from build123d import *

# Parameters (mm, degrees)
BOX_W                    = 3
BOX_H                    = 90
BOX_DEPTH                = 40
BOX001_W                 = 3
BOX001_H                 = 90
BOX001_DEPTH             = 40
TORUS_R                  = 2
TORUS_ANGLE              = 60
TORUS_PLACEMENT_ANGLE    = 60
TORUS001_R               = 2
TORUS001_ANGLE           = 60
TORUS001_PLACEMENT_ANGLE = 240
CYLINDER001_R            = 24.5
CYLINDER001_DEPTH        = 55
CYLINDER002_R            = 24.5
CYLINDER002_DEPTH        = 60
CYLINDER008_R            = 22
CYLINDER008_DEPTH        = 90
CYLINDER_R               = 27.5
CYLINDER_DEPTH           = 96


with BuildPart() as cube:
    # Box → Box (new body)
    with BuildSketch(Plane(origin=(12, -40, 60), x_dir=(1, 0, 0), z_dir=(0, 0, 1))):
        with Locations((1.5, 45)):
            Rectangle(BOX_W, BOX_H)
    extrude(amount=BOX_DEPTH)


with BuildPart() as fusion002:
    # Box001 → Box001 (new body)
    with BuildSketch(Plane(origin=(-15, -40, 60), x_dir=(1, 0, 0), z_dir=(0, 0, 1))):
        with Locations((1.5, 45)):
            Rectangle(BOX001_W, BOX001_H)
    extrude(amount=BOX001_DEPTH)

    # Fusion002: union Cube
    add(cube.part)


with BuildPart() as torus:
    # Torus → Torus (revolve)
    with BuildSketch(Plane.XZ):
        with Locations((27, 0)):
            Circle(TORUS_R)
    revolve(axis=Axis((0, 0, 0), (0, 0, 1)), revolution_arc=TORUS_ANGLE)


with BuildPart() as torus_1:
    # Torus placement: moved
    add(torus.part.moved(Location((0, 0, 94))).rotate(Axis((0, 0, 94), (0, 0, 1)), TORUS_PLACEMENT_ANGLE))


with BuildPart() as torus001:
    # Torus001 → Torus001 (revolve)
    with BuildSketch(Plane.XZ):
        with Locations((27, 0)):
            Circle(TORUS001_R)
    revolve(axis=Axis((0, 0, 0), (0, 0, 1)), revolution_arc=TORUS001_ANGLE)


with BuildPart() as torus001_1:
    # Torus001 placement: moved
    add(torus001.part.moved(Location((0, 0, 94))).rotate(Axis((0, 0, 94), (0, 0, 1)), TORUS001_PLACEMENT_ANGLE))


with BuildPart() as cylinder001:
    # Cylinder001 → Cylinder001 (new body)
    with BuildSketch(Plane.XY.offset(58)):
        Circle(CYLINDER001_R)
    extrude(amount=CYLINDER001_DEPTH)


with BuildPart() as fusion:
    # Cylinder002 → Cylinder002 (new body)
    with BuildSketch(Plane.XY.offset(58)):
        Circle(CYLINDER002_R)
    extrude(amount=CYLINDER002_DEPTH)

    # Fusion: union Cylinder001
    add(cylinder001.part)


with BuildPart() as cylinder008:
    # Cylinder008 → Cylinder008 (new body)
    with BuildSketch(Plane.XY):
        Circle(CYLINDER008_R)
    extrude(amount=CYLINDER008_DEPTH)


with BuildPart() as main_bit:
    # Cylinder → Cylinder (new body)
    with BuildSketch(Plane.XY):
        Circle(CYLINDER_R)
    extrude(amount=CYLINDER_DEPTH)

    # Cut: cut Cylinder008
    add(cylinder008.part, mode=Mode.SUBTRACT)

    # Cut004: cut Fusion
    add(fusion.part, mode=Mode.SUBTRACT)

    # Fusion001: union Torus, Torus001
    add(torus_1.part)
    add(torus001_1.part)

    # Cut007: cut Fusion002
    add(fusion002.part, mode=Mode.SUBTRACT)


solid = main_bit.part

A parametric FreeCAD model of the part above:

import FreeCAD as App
import Part
import Sketcher

V = App.Vector

doc = App.newDocument("Part")
params = doc.addObject("Spreadsheet::Sheet", "Params")
for row, (alias, value) in enumerate([
    ("sketch1_width", "3 mm"),
    ("sketch1_height", "90 mm"),
    ("pad1_length", "40 mm"),
    ("sketch2_width", "3 mm"),
    ("sketch2_height", "90 mm"),
    ("pad2_length", "40 mm"),
    ("sketch3_diameter", "4 mm"),
    ("revolution_angle", "60 deg"),
    ("sketch4_diameter", "4 mm"),
    ("revolution2_angle", "60 deg"),
    ("sketch5_diameter", "49 mm"),
    ("pad3_length", "55 mm"),
    ("sketch6_diameter", "49 mm"),
    ("pad4_length", "60 mm"),
    ("sketch7_diameter", "44 mm"),
    ("pad5_length", "90 mm"),
    ("sketch8_diameter", "55 mm"),
    ("pad6_length", "96 mm"),
], start=1):
    params.set(f"A{row}", alias)
    params.set(f"B{row}", "=" + value)
    params.setAlias(f"B{row}", alias)

body = doc.addObject("PartDesign::Body", "Body")

# Sketch on XY plane
sketch1 = body.newObject("Sketcher::SketchObject", "Sketch")
sketch1.AttachmentSupport = (doc.getObject("XY_Plane"), [""])
sketch1.MapMode = "FlatFace"
sketch1.AttachmentOffset = App.Placement(V(0, 0, 60), App.Rotation())
sketch1.addGeometry([
    Part.LineSegment(V(12, 50, 0), V(12, -40, 0)),
    Part.LineSegment(V(12, -40, 0), V(15, -40, 0)),
    Part.LineSegment(V(15, -40, 0), V(15, 50, 0)),
    Part.LineSegment(V(15, 50, 0), V(12, 50, 0)),
], False)
sketch1.addConstraint([
    Sketcher.Constraint("Coincident", 0, 2, 1, 1),
    Sketcher.Constraint("Coincident", 1, 2, 2, 1),
    Sketcher.Constraint("Coincident", 2, 2, 3, 1),
    Sketcher.Constraint("Coincident", 3, 2, 0, 1),
    Sketcher.Constraint("Vertical", 0),
    Sketcher.Constraint("Horizontal", 1),
    Sketcher.Constraint("Vertical", 2),
    Sketcher.Constraint("Horizontal", 3),
    Sketcher.Constraint("DistanceX", 1, 1, 1, 2, 3.0),
    Sketcher.Constraint("DistanceY", 0, 2, 0, 1, 90.0),
    Sketcher.Constraint("DistanceX", -1, 1, 0, 2, 12.0),
    Sketcher.Constraint("DistanceY", 0, 2, -1, 1, 40.0),
])
sketch1.setExpression("Constraints[8]", "Params.sketch1_width")
sketch1.setExpression("Constraints[9]", "Params.sketch1_height")
pad1 = body.newObject("PartDesign::Pad", "Pad")
pad1.Profile = sketch1
pad1.setExpression("Length", "Params.pad1_length")
body2 = doc.addObject("PartDesign::Body", "Body001")
body2.AllowCompound = True

# Sketch on XY plane
sketch2 = body2.newObject("Sketcher::SketchObject", "Sketch001")
sketch2.AttachmentSupport = (doc.getObject("XY_Plane001"), [""])
sketch2.MapMode = "FlatFace"
sketch2.AttachmentOffset = App.Placement(V(0, 0, 60), App.Rotation())
sketch2.addGeometry([
    Part.LineSegment(V(-15, 50, 0), V(-15, -40, 0)),
    Part.LineSegment(V(-15, -40, 0), V(-12, -40, 0)),
    Part.LineSegment(V(-12, -40, 0), V(-12, 50, 0)),
    Part.LineSegment(V(-12, 50, 0), V(-15, 50, 0)),
], False)
sketch2.addConstraint([
    Sketcher.Constraint("Coincident", 0, 2, 1, 1),
    Sketcher.Constraint("Coincident", 1, 2, 2, 1),
    Sketcher.Constraint("Coincident", 2, 2, 3, 1),
    Sketcher.Constraint("Coincident", 3, 2, 0, 1),
    Sketcher.Constraint("Vertical", 0),
    Sketcher.Constraint("Horizontal", 1),
    Sketcher.Constraint("Vertical", 2),
    Sketcher.Constraint("Horizontal", 3),
    Sketcher.Constraint("DistanceX", 1, 1, 1, 2, 3.0),
    Sketcher.Constraint("DistanceY", 0, 2, 0, 1, 90.0),
    Sketcher.Constraint("DistanceX", 0, 2, -1, 1, 15.0),
    Sketcher.Constraint("DistanceY", 0, 2, -1, 1, 40.0),
])
sketch2.setExpression("Constraints[8]", "Params.sketch2_width")
sketch2.setExpression("Constraints[9]", "Params.sketch2_height")
pad2 = body2.newObject("PartDesign::Pad", "Pad001")
pad2.Profile = sketch2
pad2.setExpression("Length", "Params.pad2_length")
doc.recompute()

boolean = body2.newObject("PartDesign::Boolean", "Boolean")
boolean.Type = "Fuse"
boolean.addObjects([body])
body3 = doc.addObject("PartDesign::Body", "Body002")

# Sketch on XZ plane
sketch3 = body3.newObject("Sketcher::SketchObject", "Sketch002")
sketch3.AttachmentSupport = (doc.getObject("XZ_Plane002"), [""])
sketch3.MapMode = "FlatFace"
sketch3.addGeometry(Part.Circle(V(27, 0, 0), V(0, 0, 1), 2), False)
sketch3.addConstraint([
    Sketcher.Constraint("PointOnObject", 0, 3, -1),
    Sketcher.Constraint("Diameter", 0, 4.0),
    Sketcher.Constraint("DistanceX", -1, 1, 0, 3, 27.0),
])
sketch3.setExpression("Constraints[1]", "Params.sketch3_diameter")
revolution = body3.newObject("PartDesign::Revolution", "Revolution")
revolution.Profile = sketch3
revolution.ReferenceAxis = (sketch3, ["V_Axis"])
revolution.setExpression("Angle", "Params.revolution_angle")
body4 = doc.addObject("PartDesign::Body", "Body003")
doc.recompute()

body3.Placement = App.Placement(V(0, 0, 94), App.Rotation(V(0, 0, 1), 60))
boolean2 = body4.newObject("PartDesign::Boolean", "Boolean001")
boolean2.Type = "Fuse"
boolean2.addObjects([body3])
body5 = doc.addObject("PartDesign::Body", "Body004")

# Sketch on XZ plane
sketch4 = body5.newObject("Sketcher::SketchObject", "Sketch003")
sketch4.AttachmentSupport = (doc.getObject("XZ_Plane004"), [""])
sketch4.MapMode = "FlatFace"
sketch4.addGeometry(Part.Circle(V(27, 0, 0), V(0, 0, 1), 2), False)
sketch4.addConstraint([
    Sketcher.Constraint("PointOnObject", 0, 3, -1),
    Sketcher.Constraint("Diameter", 0, 4.0),
    Sketcher.Constraint("DistanceX", -1, 1, 0, 3, 27.0),
])
sketch4.setExpression("Constraints[1]", "Params.sketch4_diameter")
revolution2 = body5.newObject("PartDesign::Revolution", "Revolution001")
revolution2.Profile = sketch4
revolution2.ReferenceAxis = (sketch4, ["V_Axis"])
revolution2.setExpression("Angle", "Params.revolution2_angle")
body6 = doc.addObject("PartDesign::Body", "Body005")
doc.recompute()

body5.Placement = App.Placement(V(0, 0, 94), App.Rotation(V(0, 0, 1), 240))
boolean3 = body6.newObject("PartDesign::Boolean", "Boolean002")
boolean3.Type = "Fuse"
boolean3.addObjects([body5])
body7 = doc.addObject("PartDesign::Body", "Body006")

# Sketch on XY plane
sketch5 = body7.newObject("Sketcher::SketchObject", "Sketch004")
sketch5.AttachmentSupport = (doc.getObject("XY_Plane006"), [""])
sketch5.MapMode = "FlatFace"
sketch5.AttachmentOffset = App.Placement(V(0, 0, 58), App.Rotation())
sketch5.addGeometry(Part.Circle(V(0, 0, 0), V(0, 0, 1), 24), False)
sketch5.addConstraint([
    Sketcher.Constraint("Coincident", 0, 3, -1, 1),
    Sketcher.Constraint("Diameter", 0, 49.0),
])
sketch5.setExpression("Constraints[1]", "Params.sketch5_diameter")
pad3 = body7.newObject("PartDesign::Pad", "Pad002")
pad3.Profile = sketch5
pad3.setExpression("Length", "Params.pad3_length")
body8 = doc.addObject("PartDesign::Body", "Body007")

# Sketch on XY plane
sketch6 = body8.newObject("Sketcher::SketchObject", "Sketch005")
sketch6.AttachmentSupport = (doc.getObject("XY_Plane007"), [""])
sketch6.MapMode = "FlatFace"
sketch6.AttachmentOffset = App.Placement(V(0, 0, 58), App.Rotation())
sketch6.addGeometry(Part.Circle(V(0, 0, 0), V(0, 0, 1), 24), False)
sketch6.addConstraint([
    Sketcher.Constraint("Coincident", 0, 3, -1, 1),
    Sketcher.Constraint("Diameter", 0, 49.0),
])
sketch6.setExpression("Constraints[1]", "Params.sketch6_diameter")
pad4 = body8.newObject("PartDesign::Pad", "Pad003")
pad4.Profile = sketch6
pad4.setExpression("Length", "Params.pad4_length")
doc.recompute()

boolean4 = body8.newObject("PartDesign::Boolean", "Boolean003")
boolean4.Type = "Fuse"
boolean4.addObjects([body7])
body9 = doc.addObject("PartDesign::Body", "Body008")

# Sketch on XY plane
sketch7 = body9.newObject("Sketcher::SketchObject", "Sketch006")
sketch7.AttachmentSupport = (doc.getObject("XY_Plane008"), [""])
sketch7.MapMode = "FlatFace"
sketch7.addGeometry(Part.Circle(V(0, 0, 0), V(0, 0, 1), 22), False)
sketch7.addConstraint([
    Sketcher.Constraint("Coincident", 0, 3, -1, 1),
    Sketcher.Constraint("Diameter", 0, 44.0),
])
sketch7.setExpression("Constraints[1]", "Params.sketch7_diameter")
pad5 = body9.newObject("PartDesign::Pad", "Pad004")
pad5.Profile = sketch7
pad5.setExpression("Length", "Params.pad5_length")
body10 = doc.addObject("PartDesign::Body", "Body009")

# Sketch on XY plane
sketch8 = body10.newObject("Sketcher::SketchObject", "Sketch007")
sketch8.AttachmentSupport = (doc.getObject("XY_Plane009"), [""])
sketch8.MapMode = "FlatFace"
sketch8.addGeometry(Part.Circle(V(0, 0, 0), V(0, 0, 1), 28), False)
sketch8.addConstraint([
    Sketcher.Constraint("Coincident", 0, 3, -1, 1),
    Sketcher.Constraint("Diameter", 0, 55.0),
])
sketch8.setExpression("Constraints[1]", "Params.sketch8_diameter")
pad6 = body10.newObject("PartDesign::Pad", "Pad005")
pad6.Profile = sketch8
pad6.setExpression("Length", "Params.pad6_length")
doc.recompute()

boolean5 = body10.newObject("PartDesign::Boolean", "Boolean004")
boolean5.Type = "Cut"
boolean5.addObjects([body9])
doc.recompute()

boolean6 = body10.newObject("PartDesign::Boolean", "Boolean005")
boolean6.Type = "Cut"
boolean6.addObjects([body8])
doc.recompute()

boolean7 = body10.newObject("PartDesign::Boolean", "Boolean006")
boolean7.Type = "Fuse"
boolean7.addObjects([body4])
doc.recompute()

boolean8 = body10.newObject("PartDesign::Boolean", "Boolean007")
boolean8.Type = "Fuse"
boolean8.addObjects([body6])
doc.recompute()

boolean9 = body10.newObject("PartDesign::Boolean", "Boolean008")
boolean9.Type = "Cut"
boolean9.addObjects([body2])

doc.recompute()
